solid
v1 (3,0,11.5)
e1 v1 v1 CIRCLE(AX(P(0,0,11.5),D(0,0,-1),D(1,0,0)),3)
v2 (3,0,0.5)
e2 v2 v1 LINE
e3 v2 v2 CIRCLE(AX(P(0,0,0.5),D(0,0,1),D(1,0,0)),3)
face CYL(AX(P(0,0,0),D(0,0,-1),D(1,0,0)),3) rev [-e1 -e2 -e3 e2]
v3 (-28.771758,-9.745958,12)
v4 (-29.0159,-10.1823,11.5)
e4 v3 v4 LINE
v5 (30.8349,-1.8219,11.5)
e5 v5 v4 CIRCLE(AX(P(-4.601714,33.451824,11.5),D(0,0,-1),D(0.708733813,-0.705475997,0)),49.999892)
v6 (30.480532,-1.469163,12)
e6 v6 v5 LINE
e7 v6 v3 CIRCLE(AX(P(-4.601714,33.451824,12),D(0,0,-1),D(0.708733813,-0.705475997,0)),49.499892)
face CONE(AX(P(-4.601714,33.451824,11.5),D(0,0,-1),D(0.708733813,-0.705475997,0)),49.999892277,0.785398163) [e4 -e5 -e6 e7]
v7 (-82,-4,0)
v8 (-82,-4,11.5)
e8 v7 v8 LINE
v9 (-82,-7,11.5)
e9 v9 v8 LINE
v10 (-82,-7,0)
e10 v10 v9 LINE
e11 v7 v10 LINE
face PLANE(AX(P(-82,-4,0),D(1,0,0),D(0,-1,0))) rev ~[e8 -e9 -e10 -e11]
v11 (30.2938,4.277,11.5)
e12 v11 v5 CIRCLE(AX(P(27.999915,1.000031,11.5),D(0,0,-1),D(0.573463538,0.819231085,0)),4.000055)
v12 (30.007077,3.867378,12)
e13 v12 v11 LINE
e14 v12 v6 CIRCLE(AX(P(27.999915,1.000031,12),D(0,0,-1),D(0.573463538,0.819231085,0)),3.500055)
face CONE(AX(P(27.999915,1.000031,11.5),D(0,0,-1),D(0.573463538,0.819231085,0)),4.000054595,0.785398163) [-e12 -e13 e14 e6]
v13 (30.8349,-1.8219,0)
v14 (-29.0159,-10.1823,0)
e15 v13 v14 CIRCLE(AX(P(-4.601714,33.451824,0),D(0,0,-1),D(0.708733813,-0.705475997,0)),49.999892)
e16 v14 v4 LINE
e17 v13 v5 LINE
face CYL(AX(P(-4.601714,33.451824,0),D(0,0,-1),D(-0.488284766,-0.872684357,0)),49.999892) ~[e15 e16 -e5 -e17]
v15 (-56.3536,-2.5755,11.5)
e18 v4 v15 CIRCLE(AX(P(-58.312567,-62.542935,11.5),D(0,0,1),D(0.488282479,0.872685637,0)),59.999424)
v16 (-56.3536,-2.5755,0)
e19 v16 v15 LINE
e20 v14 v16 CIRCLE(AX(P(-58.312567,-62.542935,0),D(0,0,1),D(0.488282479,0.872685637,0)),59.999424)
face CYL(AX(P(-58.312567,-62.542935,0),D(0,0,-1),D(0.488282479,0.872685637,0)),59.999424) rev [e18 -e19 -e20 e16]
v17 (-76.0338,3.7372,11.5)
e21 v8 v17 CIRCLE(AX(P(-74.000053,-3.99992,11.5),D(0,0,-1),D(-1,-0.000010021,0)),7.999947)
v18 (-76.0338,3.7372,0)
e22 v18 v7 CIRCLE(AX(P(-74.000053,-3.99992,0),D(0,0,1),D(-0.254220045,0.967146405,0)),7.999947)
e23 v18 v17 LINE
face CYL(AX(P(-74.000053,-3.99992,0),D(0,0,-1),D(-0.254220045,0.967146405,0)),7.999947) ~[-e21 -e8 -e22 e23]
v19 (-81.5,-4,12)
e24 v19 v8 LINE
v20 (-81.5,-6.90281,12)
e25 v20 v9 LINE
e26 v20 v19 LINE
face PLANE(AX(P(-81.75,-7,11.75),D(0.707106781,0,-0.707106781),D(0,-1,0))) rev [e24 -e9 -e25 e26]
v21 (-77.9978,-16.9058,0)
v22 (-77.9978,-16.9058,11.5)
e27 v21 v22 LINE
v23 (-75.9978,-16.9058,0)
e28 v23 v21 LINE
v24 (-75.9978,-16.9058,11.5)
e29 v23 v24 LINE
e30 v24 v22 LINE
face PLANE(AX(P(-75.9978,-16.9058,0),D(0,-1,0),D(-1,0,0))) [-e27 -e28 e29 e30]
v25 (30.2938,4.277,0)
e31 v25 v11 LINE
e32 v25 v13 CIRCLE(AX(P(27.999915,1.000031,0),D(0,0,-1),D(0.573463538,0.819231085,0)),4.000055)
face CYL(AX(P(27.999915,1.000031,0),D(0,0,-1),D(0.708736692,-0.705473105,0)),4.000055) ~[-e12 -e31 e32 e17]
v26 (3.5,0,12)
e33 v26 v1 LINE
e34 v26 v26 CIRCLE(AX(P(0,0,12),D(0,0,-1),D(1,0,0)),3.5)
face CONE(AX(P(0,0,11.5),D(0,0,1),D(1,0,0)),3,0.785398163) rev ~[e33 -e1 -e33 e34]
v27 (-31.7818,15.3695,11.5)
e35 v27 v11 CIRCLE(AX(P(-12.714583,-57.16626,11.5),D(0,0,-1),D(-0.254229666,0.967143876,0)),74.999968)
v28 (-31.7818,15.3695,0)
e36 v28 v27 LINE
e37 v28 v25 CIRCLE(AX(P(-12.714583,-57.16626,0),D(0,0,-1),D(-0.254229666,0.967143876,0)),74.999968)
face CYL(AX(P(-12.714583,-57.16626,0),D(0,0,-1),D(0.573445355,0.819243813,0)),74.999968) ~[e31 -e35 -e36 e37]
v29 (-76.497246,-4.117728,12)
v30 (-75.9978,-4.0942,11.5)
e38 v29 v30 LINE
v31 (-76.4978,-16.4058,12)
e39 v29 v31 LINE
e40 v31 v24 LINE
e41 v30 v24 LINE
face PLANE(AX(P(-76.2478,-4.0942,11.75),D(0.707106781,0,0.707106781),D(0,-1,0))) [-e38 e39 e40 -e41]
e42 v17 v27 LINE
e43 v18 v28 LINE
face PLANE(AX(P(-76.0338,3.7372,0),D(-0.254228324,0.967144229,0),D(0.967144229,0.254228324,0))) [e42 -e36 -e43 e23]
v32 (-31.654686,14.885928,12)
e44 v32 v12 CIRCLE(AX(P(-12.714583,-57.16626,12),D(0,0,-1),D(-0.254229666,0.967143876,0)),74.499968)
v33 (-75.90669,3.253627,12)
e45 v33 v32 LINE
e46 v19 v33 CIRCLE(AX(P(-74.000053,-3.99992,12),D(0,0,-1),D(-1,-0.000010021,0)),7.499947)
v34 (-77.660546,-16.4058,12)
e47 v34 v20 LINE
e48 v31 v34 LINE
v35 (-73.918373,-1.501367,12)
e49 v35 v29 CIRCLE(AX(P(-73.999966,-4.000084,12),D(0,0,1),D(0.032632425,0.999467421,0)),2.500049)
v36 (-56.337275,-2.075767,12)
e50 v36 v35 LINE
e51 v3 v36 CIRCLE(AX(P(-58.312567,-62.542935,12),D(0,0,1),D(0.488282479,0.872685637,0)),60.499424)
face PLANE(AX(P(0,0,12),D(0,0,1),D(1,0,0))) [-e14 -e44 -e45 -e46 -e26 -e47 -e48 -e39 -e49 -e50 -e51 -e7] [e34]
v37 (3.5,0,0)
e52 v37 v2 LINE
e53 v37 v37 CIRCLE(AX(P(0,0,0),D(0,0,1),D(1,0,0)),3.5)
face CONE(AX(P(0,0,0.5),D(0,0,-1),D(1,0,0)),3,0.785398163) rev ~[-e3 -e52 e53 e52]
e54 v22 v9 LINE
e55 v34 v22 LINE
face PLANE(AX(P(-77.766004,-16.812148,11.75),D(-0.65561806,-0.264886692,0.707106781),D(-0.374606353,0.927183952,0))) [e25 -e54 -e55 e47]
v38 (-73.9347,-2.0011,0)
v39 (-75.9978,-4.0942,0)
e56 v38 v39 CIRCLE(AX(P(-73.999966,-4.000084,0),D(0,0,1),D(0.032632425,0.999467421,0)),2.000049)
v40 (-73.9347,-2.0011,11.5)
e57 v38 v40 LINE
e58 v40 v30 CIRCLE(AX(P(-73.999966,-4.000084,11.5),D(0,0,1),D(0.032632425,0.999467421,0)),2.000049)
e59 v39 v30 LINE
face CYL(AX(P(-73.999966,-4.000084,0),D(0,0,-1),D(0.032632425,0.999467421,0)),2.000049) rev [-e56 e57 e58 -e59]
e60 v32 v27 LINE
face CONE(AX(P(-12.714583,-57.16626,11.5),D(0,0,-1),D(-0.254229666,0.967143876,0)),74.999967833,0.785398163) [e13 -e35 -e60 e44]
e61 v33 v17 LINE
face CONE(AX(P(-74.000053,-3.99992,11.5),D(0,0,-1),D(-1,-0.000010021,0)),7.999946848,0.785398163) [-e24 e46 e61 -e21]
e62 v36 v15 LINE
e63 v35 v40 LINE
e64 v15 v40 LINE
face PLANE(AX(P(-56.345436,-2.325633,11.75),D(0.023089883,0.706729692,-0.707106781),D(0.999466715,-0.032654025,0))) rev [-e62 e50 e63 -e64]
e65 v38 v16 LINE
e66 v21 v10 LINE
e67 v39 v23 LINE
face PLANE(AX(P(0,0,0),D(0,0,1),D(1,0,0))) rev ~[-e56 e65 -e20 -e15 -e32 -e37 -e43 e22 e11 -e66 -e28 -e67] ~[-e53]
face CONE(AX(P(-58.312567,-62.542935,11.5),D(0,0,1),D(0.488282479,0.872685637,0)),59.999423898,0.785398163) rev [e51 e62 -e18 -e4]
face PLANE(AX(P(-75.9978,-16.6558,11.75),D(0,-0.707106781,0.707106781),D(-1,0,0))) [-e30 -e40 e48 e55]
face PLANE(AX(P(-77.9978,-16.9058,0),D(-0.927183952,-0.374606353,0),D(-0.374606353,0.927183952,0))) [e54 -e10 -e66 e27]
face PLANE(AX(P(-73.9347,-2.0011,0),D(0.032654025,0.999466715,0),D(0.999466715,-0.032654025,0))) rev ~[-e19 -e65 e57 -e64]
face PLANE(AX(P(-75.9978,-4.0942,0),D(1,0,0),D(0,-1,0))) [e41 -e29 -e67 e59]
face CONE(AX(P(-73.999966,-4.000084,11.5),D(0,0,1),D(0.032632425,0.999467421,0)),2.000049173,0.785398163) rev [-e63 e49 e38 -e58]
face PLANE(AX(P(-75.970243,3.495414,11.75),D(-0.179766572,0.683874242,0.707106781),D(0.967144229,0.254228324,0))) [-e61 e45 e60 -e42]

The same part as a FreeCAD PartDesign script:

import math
import FreeCAD as App
import Part
import Sketcher

V = App.Vector
Q = App.Units.Quantity


def edges_at(feature, points):
    """Names of the edges that pass closest to the given points."""
    edges = feature.Shape.Edges
    near = lambda p: min(range(len(edges)), key=lambda i: edges[i].distToShape(Part.Vertex(*p))[0])
    return sorted({f"Edge{near(p) + 1}" for p in points})

doc = App.newDocument("Part")
body = doc.addObject("PartDesign::Body", "Body")

# Sketch on XY plane
sketch1 = body.newObject("Sketcher::SketchObject", "Sketch")
sketch1.AttachmentSupport = (doc.getObject("XY_Plane"), [""])
sketch1.MapMode = "FlatFace"
sketch1.addGeometry(Part.ArcOfCircle(Part.Circle(V(-74, -4, 0), V(0, 0, 1), 8), math.radians(105), math.radians(180)), False)
sketch1.addGeometry(Part.LineSegment(V(-82, -4, 0), V(-82, -7, 0)), False)
sketch1.addGeometry(Part.LineSegment(V(-82, -7, 0), V(-78, -16.9, 0)), False)
sketch1.addGeometry(Part.LineSegment(V(-78, -16.9, 0), V(-76, -16.9, 0)), False)
sketch1.addGeometry(Part.LineSegment(V(-76, -16.9, 0), V(-76, -4.1, 0)), False)
sketch1.addGeometry(Part.ArcOfCircle(Part.Circle(V(-74, -4, 0), V(0, 0, 1), 2), math.radians(88), math.radians(183)), False)
sketch1.addGeometry(Part.LineSegment(V(-73.9, -2, 0), V(-56.4, -2.6, 0)), False)
sketch1.addGeometry(Part.ArcOfCircle(Part.Circle(V(-58.3, -62.5, 0), V(0, 0, 1), 60), math.radians(61), math.radians(88)), False)
sketch1.addGeometry(Part.ArcOfCircle(Part.Circle(V(-4.6, 33.5, 0), V(0, 0, 1), 50), math.radians(-119), math.radians(-45)), False)
sketch1.addGeometry(Part.ArcOfCircle(Part.Circle(V(28, 1, 0), V(0, 0, 1), 4), math.radians(-45), math.radians(55)), False)
sketch1.addGeometry(Part.ArcOfCircle(Part.Circle(V(-12.7, -57.2, 0), V(0, 0, 1), 75), math.radians(55), math.radians(105)), False)
sketch1.addGeometry(Part.LineSegment(V(-31.8, 15.4, 0), V(-76, 3.7, 0)), False)
sketch1.addGeometry(Part.Circle(V(0, 0, 0), V(0, 0, 1), 3), False)
sketch1.addConstraint(Sketcher.Constraint("Tangent", 0, 2, 1, 1))
sketch1.addConstraint(Sketcher.Constraint("Coincident", 1, 2, 2, 1))
sketch1.addConstraint(Sketcher.Constraint("Coincident", 2, 2, 3, 1))
sketch1.addConstraint(Sketcher.Constraint("Coincident", 3, 2, 4, 1))
sketch1.addConstraint(Sketcher.Constraint("Coincident", 4, 2, 5, 2))
sketch1.addConstraint(Sketcher.Constraint("Tangent", 5, 1, 6, 1))
sketch1.addConstraint(Sketcher.Constraint("Tangent", 6, 2, 7, 2))
sketch1.addConstraint(Sketcher.Constraint("Tangent", 7, 1, 8, 1))
sketch1.addConstraint(Sketcher.Constraint("Tangent", 8, 2, 9, 1))
sketch1.addConstraint(Sketcher.Constraint("Tangent", 9, 2, 10, 1))
sketch1.addConstraint(Sketcher.Constraint("Tangent", 10, 2, 11, 1))
sketch1.addConstraint(Sketcher.Constraint("Tangent", 11, 2, 0, 1))
sketch1.addConstraint(Sketcher.Constraint("Vertical", 1))
sketch1.addConstraint(Sketcher.Constraint("Horizontal", 3))
sketch1.addConstraint(Sketcher.Constraint("Vertical", 4))
sketch1.addConstraint(Sketcher.Constraint("Coincident", 12, 3, -1, 1))
sketch1.addConstraint(Sketcher.Constraint("Coincident", 5, 3, 0, 3))
sketch1.addConstraint(Sketcher.Constraint("Diameter", 12, 6.0))
sketch1.addConstraint(Sketcher.Constraint("Radius", 0, 8.0))
sketch1.addConstraint(Sketcher.Constraint("Radius", 5, 2.0))
sketch1.addConstraint(Sketcher.Constraint("Radius", 7, 60.0))
sketch1.addConstraint(Sketcher.Constraint("Radius", 8, 50.0))
sketch1.addConstraint(Sketcher.Constraint("Radius", 9, 4.0))
sketch1.addConstraint(Sketcher.Constraint("Radius", 10, 75.0))
sketch1.addConstraint(Sketcher.Constraint("DistanceX", 3, 1, 3, 2, 2.0))
sketch1.addConstraint(Sketcher.Constraint("DistanceY", 1, 2, 1, 1, 3.0))
sketch1.addConstraint(Sketcher.Constraint("DistanceX", 0, 3, -1, 1, 74.0))
sketch1.addConstraint(Sketcher.Constraint("DistanceY", 0, 3, -1, 1, 4.0))
sketch1.addConstraint(Sketcher.Constraint("DistanceX", -1, 1, 9, 3, 28.0))
sketch1.addConstraint(Sketcher.Constraint("DistanceY", -1, 1, 9, 3, 1.0))
sketch1.addConstraint(Sketcher.Constraint("Angle", 2, Q("-68 deg")))
sketch1.addConstraint(Sketcher.Constraint("DistanceX", 10, 2, 8, 3, 27.18))
sketch1.addConstraint(Sketcher.Constraint("DistanceY", 4, 1, 4, 2, 12.8116))
sketch1.addConstraint(Sketcher.Constraint("DistanceY", -1, 1, 8, 3, 33.452))
sketch1.addConstraint(Sketcher.Constraint("DistanceX", 7, 1, -1, 1, 29.016))
pad1 = body.newObject("PartDesign::Pad", "Pad")
pad1.Profile = sketch1
pad1.Length = 12
doc.recompute()

chamfer = body.newObject("PartDesign::Chamfer", "Chamfer")
chamfer.Base = (pad1, edges_at(pad1, [
    (-79.999, -11.953, 12),
    (-76.998, -16.906, 12),
    (-75.998, -10.5, 12),
    (-76, -4, 12),
    (-75.357, -2.53, 12),
    (-65.144, -2.288, 12),
    (-42.229, -4.739, 12),
    (2.316, -16.067, 12),
    (31.984, 1.353, 12),
    (0.478, 16.664, 12),
    (-53.908, 9.553, 12),
    (-80.335, 0.885, 12),
    (-82, -5.5, 12),
    (-3, 0, 12),
    (-3, 0, 0),
]))
chamfer.Size = 0.5

doc.recompute()
